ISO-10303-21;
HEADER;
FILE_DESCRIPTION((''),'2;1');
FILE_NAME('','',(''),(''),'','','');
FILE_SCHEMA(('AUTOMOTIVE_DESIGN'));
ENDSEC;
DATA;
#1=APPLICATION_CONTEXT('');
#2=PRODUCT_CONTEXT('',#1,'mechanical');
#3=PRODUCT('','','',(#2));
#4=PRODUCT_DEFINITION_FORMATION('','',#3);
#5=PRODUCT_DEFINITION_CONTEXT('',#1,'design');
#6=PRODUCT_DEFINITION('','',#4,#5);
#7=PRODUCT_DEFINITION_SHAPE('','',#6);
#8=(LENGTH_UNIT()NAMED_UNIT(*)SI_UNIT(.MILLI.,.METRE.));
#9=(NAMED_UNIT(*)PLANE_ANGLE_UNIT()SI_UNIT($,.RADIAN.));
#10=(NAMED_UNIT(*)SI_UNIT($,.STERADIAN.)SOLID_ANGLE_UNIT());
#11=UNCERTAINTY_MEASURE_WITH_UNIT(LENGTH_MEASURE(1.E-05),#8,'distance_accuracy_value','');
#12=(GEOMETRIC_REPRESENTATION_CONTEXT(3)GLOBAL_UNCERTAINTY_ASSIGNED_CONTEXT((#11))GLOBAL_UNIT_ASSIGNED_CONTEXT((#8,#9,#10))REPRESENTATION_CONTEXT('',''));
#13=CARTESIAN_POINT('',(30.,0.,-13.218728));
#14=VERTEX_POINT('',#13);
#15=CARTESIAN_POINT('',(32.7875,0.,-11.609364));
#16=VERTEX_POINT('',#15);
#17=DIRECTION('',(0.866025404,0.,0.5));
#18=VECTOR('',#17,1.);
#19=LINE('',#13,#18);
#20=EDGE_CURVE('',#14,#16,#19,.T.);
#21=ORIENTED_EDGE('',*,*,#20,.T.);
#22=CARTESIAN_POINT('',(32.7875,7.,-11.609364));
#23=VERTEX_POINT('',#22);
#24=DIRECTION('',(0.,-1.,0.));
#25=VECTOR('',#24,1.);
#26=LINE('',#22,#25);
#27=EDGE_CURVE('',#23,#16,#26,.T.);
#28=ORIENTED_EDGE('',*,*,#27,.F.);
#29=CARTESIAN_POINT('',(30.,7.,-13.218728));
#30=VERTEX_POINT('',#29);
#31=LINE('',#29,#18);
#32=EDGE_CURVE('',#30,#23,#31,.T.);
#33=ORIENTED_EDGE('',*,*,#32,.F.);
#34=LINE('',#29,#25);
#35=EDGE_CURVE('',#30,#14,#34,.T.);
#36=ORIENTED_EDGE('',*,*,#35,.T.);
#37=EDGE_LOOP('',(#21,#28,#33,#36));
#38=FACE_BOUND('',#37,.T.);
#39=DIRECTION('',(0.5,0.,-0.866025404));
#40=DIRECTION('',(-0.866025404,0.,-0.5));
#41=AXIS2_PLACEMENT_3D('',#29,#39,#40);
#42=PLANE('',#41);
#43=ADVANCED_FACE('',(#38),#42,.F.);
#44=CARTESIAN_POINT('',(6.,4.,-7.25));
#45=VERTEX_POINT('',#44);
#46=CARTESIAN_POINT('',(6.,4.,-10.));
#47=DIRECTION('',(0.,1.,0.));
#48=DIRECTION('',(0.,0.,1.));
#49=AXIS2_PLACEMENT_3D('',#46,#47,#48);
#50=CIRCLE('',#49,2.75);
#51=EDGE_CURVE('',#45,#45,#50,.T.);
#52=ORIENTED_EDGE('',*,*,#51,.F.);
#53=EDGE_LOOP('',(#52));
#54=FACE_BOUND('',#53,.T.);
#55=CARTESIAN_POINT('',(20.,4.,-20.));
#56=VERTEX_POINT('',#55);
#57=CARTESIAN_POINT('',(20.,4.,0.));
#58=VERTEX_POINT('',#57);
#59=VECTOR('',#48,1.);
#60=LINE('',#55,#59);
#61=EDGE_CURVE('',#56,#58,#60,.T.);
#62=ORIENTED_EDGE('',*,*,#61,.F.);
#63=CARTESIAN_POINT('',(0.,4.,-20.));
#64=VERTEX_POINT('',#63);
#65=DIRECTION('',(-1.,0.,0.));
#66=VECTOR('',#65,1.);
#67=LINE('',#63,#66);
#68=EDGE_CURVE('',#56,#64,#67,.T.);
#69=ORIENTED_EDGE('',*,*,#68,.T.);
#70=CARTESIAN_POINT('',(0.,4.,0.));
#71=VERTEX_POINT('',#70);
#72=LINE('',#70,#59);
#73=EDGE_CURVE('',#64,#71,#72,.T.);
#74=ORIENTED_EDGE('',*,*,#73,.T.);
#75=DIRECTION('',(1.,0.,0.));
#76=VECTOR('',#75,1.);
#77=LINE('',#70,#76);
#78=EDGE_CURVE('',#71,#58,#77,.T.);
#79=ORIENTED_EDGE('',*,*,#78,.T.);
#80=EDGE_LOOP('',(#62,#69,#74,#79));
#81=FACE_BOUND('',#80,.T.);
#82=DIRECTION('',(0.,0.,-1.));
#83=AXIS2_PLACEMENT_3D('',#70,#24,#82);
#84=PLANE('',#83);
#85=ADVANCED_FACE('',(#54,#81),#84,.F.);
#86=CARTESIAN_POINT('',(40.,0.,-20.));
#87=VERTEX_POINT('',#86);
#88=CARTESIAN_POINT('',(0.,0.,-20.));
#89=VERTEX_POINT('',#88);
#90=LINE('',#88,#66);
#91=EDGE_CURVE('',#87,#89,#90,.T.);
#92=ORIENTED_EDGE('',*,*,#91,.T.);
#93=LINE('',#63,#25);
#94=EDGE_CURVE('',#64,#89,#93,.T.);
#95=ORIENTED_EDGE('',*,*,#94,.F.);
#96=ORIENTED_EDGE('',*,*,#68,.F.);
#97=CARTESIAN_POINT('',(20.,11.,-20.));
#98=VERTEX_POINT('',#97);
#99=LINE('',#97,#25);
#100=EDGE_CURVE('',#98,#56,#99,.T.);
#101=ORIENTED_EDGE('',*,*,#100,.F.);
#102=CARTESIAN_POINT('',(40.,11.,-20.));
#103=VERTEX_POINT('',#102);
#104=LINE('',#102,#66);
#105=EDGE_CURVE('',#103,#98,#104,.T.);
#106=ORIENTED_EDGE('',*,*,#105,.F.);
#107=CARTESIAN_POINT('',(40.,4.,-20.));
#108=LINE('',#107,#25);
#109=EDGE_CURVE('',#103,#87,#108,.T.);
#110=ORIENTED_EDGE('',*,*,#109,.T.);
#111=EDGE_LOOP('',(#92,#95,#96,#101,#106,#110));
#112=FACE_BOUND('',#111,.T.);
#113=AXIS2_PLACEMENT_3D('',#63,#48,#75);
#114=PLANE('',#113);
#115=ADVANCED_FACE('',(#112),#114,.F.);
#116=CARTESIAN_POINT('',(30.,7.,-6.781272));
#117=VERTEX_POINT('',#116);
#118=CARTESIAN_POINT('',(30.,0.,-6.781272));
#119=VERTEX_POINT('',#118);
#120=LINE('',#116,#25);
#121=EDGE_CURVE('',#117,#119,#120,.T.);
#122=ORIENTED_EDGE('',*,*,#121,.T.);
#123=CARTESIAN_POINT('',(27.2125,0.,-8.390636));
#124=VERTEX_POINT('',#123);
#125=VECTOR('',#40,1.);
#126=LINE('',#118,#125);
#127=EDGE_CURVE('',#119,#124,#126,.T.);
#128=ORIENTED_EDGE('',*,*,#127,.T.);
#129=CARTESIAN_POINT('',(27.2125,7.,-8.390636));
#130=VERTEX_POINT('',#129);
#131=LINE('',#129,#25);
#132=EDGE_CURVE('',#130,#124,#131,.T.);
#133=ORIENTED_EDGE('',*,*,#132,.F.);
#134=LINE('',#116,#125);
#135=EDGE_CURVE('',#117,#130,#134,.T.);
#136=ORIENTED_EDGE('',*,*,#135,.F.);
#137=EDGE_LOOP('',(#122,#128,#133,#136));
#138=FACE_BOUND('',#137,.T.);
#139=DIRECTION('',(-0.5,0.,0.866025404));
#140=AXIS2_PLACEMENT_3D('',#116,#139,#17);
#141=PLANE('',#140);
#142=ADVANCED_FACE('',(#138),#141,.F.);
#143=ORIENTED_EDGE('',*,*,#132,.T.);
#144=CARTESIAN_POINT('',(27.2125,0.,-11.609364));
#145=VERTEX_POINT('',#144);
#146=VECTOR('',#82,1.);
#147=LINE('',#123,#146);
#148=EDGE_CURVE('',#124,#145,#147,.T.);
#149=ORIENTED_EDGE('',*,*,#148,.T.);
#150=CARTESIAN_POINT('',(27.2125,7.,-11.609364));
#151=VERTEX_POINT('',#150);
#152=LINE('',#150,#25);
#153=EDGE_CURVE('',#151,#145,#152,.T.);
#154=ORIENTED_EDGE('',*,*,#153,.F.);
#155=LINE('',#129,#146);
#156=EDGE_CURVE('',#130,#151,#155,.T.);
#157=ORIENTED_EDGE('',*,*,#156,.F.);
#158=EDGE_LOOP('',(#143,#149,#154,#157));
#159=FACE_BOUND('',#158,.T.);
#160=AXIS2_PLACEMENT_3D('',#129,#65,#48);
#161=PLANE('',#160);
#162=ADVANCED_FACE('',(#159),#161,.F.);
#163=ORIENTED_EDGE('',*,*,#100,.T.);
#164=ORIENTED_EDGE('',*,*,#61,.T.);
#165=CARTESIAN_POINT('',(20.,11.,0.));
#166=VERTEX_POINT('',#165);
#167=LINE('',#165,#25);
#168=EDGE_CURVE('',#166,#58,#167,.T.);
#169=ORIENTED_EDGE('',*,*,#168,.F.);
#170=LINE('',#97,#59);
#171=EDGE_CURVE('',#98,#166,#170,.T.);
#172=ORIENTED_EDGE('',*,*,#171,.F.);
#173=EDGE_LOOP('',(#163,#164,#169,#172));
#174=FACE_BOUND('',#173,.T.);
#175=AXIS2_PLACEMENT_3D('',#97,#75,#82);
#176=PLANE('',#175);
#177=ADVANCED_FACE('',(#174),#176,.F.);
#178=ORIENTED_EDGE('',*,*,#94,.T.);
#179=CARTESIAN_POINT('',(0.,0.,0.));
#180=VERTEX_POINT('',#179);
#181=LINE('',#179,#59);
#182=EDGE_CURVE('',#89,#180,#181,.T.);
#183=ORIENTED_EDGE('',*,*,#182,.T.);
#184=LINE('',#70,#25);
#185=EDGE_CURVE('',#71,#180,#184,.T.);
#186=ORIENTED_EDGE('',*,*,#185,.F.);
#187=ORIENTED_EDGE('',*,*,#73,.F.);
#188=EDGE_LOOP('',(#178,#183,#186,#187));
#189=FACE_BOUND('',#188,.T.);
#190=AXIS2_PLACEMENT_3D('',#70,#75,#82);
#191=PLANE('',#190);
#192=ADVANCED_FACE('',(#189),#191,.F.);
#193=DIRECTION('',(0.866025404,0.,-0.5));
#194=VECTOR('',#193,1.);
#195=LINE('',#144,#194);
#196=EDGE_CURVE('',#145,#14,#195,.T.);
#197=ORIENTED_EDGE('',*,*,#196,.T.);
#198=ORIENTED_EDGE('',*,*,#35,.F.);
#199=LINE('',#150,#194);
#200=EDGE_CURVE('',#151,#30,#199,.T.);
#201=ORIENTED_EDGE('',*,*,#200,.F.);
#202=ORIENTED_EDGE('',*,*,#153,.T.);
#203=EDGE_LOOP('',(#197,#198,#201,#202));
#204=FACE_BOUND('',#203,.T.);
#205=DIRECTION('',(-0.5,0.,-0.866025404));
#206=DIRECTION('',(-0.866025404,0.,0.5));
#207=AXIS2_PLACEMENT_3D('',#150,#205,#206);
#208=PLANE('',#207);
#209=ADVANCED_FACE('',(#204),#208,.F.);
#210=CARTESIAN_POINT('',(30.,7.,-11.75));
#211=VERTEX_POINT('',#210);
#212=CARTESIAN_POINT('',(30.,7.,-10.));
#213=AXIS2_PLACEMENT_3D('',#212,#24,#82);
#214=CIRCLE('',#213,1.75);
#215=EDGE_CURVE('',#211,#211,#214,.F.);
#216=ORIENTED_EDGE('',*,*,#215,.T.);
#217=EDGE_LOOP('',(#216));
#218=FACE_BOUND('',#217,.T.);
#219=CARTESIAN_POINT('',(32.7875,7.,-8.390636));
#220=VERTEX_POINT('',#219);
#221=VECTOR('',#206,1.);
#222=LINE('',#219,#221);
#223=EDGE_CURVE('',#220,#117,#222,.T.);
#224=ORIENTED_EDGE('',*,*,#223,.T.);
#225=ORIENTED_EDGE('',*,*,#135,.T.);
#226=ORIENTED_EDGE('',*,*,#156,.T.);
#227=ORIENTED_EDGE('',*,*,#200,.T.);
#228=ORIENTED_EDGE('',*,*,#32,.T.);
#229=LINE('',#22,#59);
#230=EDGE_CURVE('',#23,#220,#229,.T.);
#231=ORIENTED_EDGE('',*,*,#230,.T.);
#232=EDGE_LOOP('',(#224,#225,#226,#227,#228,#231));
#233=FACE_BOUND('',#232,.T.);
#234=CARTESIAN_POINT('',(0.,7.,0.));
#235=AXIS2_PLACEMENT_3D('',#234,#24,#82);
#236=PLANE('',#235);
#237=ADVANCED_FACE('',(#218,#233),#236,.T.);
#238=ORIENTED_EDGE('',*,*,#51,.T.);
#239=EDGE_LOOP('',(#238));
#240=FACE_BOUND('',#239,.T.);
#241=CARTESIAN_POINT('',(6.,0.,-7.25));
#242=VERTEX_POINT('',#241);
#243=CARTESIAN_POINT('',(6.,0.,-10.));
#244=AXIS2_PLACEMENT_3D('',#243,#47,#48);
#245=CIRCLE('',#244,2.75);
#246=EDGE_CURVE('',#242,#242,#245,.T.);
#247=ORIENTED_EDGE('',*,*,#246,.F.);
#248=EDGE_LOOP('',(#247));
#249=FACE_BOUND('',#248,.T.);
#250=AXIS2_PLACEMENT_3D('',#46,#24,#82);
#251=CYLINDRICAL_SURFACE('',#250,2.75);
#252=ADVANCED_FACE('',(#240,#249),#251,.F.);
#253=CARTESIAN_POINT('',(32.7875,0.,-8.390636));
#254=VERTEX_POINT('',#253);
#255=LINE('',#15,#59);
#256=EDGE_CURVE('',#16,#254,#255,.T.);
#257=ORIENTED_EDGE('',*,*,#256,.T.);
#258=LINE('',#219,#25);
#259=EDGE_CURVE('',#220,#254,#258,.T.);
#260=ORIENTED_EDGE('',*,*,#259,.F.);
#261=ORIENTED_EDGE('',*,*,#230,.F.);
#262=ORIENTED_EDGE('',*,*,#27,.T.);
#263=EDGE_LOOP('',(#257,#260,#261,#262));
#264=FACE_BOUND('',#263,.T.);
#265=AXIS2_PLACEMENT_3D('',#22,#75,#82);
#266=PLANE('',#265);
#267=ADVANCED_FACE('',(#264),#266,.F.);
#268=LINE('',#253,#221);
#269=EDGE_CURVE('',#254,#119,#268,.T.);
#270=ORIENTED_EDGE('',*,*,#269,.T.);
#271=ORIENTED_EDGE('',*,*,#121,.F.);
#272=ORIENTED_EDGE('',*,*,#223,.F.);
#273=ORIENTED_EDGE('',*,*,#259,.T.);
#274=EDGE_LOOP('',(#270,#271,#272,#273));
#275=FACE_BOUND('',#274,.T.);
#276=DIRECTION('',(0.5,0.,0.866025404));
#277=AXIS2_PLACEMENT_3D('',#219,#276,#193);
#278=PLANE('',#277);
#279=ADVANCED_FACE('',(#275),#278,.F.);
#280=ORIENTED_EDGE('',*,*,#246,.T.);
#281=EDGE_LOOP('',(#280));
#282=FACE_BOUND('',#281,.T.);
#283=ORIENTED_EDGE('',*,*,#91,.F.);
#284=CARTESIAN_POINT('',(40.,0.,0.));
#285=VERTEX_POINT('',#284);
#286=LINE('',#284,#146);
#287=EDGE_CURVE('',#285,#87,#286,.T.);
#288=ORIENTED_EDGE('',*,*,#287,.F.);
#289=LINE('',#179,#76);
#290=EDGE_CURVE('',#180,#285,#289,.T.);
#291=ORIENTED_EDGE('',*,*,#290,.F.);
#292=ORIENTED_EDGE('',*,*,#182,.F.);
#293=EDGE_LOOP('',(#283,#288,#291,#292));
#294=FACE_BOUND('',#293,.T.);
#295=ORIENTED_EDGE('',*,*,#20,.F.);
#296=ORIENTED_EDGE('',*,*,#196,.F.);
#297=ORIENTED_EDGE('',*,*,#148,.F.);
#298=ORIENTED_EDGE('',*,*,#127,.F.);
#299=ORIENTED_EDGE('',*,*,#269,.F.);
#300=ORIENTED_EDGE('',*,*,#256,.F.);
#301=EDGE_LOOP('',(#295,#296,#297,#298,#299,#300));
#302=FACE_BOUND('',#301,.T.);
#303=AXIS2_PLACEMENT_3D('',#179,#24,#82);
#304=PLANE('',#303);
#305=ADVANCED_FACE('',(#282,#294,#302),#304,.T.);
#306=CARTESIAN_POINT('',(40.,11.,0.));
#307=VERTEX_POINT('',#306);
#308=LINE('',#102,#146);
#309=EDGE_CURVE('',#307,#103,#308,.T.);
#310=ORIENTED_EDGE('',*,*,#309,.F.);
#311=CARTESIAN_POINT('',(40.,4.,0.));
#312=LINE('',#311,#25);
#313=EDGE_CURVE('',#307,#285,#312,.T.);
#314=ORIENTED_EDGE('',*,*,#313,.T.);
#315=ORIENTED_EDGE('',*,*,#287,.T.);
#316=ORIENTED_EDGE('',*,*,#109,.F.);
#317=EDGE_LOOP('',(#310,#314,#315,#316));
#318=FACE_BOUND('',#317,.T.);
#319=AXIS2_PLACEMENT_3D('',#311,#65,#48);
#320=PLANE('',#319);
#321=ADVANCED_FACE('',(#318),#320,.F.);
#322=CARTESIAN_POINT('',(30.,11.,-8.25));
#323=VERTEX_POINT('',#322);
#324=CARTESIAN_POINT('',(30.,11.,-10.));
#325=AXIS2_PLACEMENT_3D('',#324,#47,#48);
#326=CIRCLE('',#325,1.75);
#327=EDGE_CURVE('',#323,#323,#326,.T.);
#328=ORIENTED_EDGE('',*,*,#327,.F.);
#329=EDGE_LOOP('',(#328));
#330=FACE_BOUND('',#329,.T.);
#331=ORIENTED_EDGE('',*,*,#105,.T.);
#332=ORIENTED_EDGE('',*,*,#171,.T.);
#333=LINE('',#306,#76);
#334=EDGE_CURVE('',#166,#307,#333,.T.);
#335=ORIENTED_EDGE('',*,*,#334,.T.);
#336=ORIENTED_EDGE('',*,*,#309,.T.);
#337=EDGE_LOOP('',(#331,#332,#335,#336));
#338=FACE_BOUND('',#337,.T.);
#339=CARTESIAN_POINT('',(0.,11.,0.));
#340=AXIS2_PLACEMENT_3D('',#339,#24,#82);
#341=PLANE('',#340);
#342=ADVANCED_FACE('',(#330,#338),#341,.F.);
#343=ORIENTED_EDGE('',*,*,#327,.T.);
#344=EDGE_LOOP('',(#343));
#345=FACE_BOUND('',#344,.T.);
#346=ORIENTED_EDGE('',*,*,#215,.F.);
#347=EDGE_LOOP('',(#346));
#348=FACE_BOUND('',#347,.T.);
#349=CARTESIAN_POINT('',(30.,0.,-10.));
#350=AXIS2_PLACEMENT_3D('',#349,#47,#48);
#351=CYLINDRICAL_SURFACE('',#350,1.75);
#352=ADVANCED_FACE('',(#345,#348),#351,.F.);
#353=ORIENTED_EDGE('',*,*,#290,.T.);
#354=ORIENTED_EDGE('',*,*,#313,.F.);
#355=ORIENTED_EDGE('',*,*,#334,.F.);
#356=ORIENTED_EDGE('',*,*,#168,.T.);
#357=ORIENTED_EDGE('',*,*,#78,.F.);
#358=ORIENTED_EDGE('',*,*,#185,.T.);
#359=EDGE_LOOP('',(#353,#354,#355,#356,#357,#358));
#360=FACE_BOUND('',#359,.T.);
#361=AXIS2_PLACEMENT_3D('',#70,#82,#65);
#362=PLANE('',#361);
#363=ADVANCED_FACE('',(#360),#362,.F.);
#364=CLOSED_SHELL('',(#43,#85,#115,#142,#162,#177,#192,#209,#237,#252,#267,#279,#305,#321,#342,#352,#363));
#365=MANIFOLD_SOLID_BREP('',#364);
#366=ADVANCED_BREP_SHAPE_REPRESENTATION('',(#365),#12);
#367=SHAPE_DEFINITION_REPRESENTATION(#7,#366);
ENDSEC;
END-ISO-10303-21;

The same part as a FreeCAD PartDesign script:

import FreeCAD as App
import Part
import Sketcher
Q = App.Units.Quantity

doc = App.newDocument("Part")
body = doc.addObject("PartDesign::Body", "Body")

# Sketch on XZ plane
sketch1 = body.newObject("Sketcher::SketchObject", "Sketch")
sketch1.AttachmentSupport = (doc.getObject("XZ_Plane"), [""])
sketch1.MapMode = "FlatFace"
sketch1.addGeometry([
    Part.LineSegment(App.Vector(0, -20, 0), App.Vector(0, 0, 0)),  # 0
    Part.LineSegment(App.Vector(0, 0, 0), App.Vector(40, 0, 0)),  # 1
    Part.LineSegment(App.Vector(40, 0, 0), App.Vector(40, -20, 0)),  # 2
    Part.LineSegment(App.Vector(40, -20, 0), App.Vector(0, -20, 0)),  # 3
    Part.Circle(App.Vector(6, -10, 0), App.Vector(0, 0, 1), 2.8),  # 4
], False)
sketch1.addConstraint([
    Sketcher.Constraint("Coincident", 0, 2, 1, 1),
    Sketcher.Constraint("Coincident", 1, 2, 2, 1),
    Sketcher.Constraint("Coincident", 2, 2, 3, 1),
    Sketcher.Constraint("Coincident", 3, 2, 0, 1),
    Sketcher.Constraint("Vertical", 0),
    Sketcher.Constraint("Horizontal", 1),
    Sketcher.Constraint("Vertical", 2),
    Sketcher.Constraint("Horizontal", 3),
    Sketcher.Constraint("Coincident", 0, 2, -1, 1),
    Sketcher.Constraint("Diameter", 4, Q("5.5 mm")),
    Sketcher.Constraint("DistanceX", 1, 1, 1, 2, Q("40 mm")),
    Sketcher.Constraint("DistanceY", 0, 1, 0, 2, Q("20 mm")),
    Sketcher.Constraint("DistanceX", -1, 1, 4, 3, Q("6 mm")),
    Sketcher.Constraint("DistanceY", 4, 3, -1, 1, Q("10 mm")),
])
pad1 = body.newObject("PartDesign::Pad", "Pad")
pad1.Profile = sketch1
pad1.Length = 4
pad1.Reversed = True

# Sketch on XZ plane
sketch2 = body.newObject("Sketcher::SketchObject", "Sketch001")
sketch2.AttachmentSupport = (doc.getObject("XZ_Plane"), [""])
sketch2.MapMode = "FlatFace"
sketch2.AttachmentOffset = App.Placement(App.Vector(0, 0, -4), App.Rotation())
sketch2.addGeometry([
    Part.LineSegment(App.Vector(20, -20, 0), App.Vector(20, 0, 0)),
    Part.LineSegment(App.Vector(20, 0, 0), App.Vector(40, 0, 0)),
    Part.LineSegment(App.Vector(40, 0, 0), App.Vector(40, -20, 0)),
    Part.LineSegment(App.Vector(40, -20, 0), App.Vector(20, -20, 0)),
], False)
sketch2.addConstraint([
    Sketcher.Constraint("Coincident", 0, 2, 1, 1),
    Sketcher.Constraint("Coincident", 1, 2, 2, 1),
    Sketcher.Constraint("Coincident", 2, 2, 3, 1),
    Sketcher.Constraint("Coincident", 3, 2, 0, 1),
    Sketcher.Constraint("Vertical", 0),
    Sketcher.Constraint("Horizontal", 1),
    Sketcher.Constraint("Vertical", 2),
    Sketcher.Constraint("Horizontal", 3),
    Sketcher.Constraint("PointOnObject", 0, 2, -1),
    Sketcher.Constraint("Equal", 3, 0),
    Sketcher.Constraint("DistanceX", 1, 1, 1, 2, Q("20 mm")),
    Sketcher.Constraint("DistanceX", -1, 1, 0, 2, Q("20 mm")),
])
pad2 = body.newObject("PartDesign::Pad", "Pad001")
pad2.Profile = sketch2
pad2.Length = 7
pad2.Reversed = True

# Sketch on XZ plane
sketch3 = body.newObject("Sketcher::SketchObject", "Sketch002")
sketch3.AttachmentSupport = (doc.getObject("XZ_Plane"), [""])
sketch3.MapMode = "FlatFace"
sketch3.AttachmentOffset = App.Placement(App.Vector(0, 0, -11), App.Rotation())
sketch3.addGeometry(Part.Circle(App.Vector(30, -10, 0), App.Vector(0, 0, 1), 1.8), False)
sketch3.addConstraint([
    Sketcher.Constraint("Diameter", 0, Q("3.5 mm")),
    Sketcher.Constraint("DistanceX", -1, 1, 0, 3, Q("30 mm")),
    Sketcher.Constraint("DistanceY", 0, 3, -1, 1, Q("10 mm")),
])
pocket1 = body.newObject("PartDesign::Pocket", "Pocket")
pocket1.Profile = sketch3
pocket1.Type = "ThroughAll"
pocket1.Reversed = True

# Sketch on XZ plane
sketch4 = body.newObject("Sketcher::SketchObject", "Sketch003")
sketch4.AttachmentSupport = (doc.getObject("XZ_Plane"), [""])
sketch4.MapMode = "FlatFace"
sketch4.addGeometry([
    Part.LineSegment(App.Vector(30, -13.2, 0), App.Vector(32.8, -11.6, 0)),  # 0
    Part.LineSegment(App.Vector(32.8, -11.6, 0), App.Vector(32.8, -8.4, 0)),  # 1
    Part.LineSegment(App.Vector(32.8, -8.4, 0), App.Vector(30, -6.8, 0)),  # 2
    Part.LineSegment(App.Vector(30, -6.8, 0), App.Vector(27.2, -8.4, 0)),  # 3
    Part.LineSegment(App.Vector(27.2, -8.4, 0), App.Vector(27.2, -11.6, 0)),  # 4
    Part.LineSegment(App.Vector(27.2, -11.6, 0), App.Vector(30, -13.2, 0)),  # 5
], False)
sketch4.addConstraint([
    Sketcher.Constraint("Coincident", 0, 2, 1, 1),
    Sketcher.Constraint("Coincident", 1, 2, 2, 1),
    Sketcher.Constraint("Coincident", 2, 2, 3, 1),
    Sketcher.Constraint("Coincident", 3, 2, 4, 1),
    Sketcher.Constraint("Coincident", 4, 2, 5, 1),
    Sketcher.Constraint("Coincident", 5, 2, 0, 1),
    Sketcher.Constraint("Vertical", 1),
    Sketcher.Constraint("Vertical", 4),
    Sketcher.Constraint("Parallel", 0, 3),
    Sketcher.Constraint("Parallel", 2, 5),
    Sketcher.Constraint("Horizontal", 1, 2, 3, 2),
    Sketcher.Constraint("Horizontal", 0, 2, 4, 2),
    Sketcher.Constraint("Vertical", 2, 2, 5, 2),
    Sketcher.Constraint("Angle", 0, Q("30 deg")),
    Sketcher.Constraint("DistanceX", -1, 1, 2, 2, Q("30 mm")),
    Sketcher.Constraint("DistanceX", 3, 2, 1, 2, Q("5.575 mm")),
    Sketcher.Constraint("DistanceY", 1, 1, 1, 2, Q("3.218728 mm")),
    Sketcher.Constraint("DistanceY", 0, 2, -1, 1, Q("11.609364 mm")),
])
pocket2 = body.newObject("PartDesign::Pocket", "Pocket001")
pocket2.Profile = sketch4
pocket2.Length = 7

doc.recompute()
